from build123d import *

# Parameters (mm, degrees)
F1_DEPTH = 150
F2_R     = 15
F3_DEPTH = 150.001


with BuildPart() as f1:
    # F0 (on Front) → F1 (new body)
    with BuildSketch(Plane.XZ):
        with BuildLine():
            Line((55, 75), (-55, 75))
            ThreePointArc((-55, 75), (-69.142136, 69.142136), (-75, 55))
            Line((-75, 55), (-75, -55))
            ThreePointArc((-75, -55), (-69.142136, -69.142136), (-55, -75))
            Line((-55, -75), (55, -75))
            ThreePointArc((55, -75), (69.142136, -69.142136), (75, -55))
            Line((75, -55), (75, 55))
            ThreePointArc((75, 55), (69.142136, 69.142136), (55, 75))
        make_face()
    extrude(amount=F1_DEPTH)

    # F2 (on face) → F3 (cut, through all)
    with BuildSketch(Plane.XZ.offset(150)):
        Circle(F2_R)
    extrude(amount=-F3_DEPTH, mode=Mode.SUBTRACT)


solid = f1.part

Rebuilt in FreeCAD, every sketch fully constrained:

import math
import FreeCAD as App
import Part
import Sketcher
from FreeCAD import Vector

doc = App.newDocument("Part")
body = doc.addObject("PartDesign::Body", "Body")

# Sketch on XZ plane
sketch1 = body.newObject("Sketcher::SketchObject", "Sketch")
sketch1.AttachmentSupport = (doc.getObject("XZ_Plane"), [""])
sketch1.MapMode = "FlatFace"
sketch1.addGeometry([
    Part.LineSegment(Vector(55, 75, 0), Vector(-55, 75, 0)),  # 0
    Part.ArcOfCircle(Part.Circle(Vector(-55.000001, 55.000001, 0), Vector(0, 0, 1), 19.999999), math.radians(89.999996), math.radians(180.000004)),  # 1
    Part.LineSegment(Vector(-75, 55, 0), Vector(-75, -55, 0)),  # 2
    Part.ArcOfCircle(Part.Circle(Vector(-55.000001, -55.000001, 0), Vector(0, 0, 1), 19.999999), math.radians(179.999996), math.radians(270.000004)),  # 3
    Part.LineSegment(Vector(-55, -75, 0), Vector(55, -75, 0)),  # 4
    Part.ArcOfCircle(Part.Circle(Vector(55.000001, -55.000001, 0), Vector(0, 0, 1), 19.999999), math.radians(-90.000004), math.radians(0.000004)),  # 5
    Part.LineSegment(Vector(75, -55, 0), Vector(75, 55, 0)),  # 6
    Part.ArcOfCircle(Part.Circle(Vector(55.000001, 55.000001, 0), Vector(0, 0, 1), 19.999999), math.radians(-0.000004), math.radians(90.000004)),  # 7
], False)
sketch1.addConstraint([
    Sketcher.Constraint("Tangent", 0, 2, 1, 1),
    Sketcher.Constraint("Tangent", 1, 2, 2, 1),
    Sketcher.Constraint("Tangent", 2, 2, 3, 1),
    Sketcher.Constraint("Tangent", 3, 2, 4, 1),
    Sketcher.Constraint("Tangent", 4, 2, 5, 1),
    Sketcher.Constraint("Tangent", 5, 2, 6, 1),
    Sketcher.Constraint("Tangent", 6, 2, 7, 1),
    Sketcher.Constraint("Tangent", 7, 2, 0, 1),
    Sketcher.Constraint("Horizontal", 0),
    Sketcher.Constraint("Vertical", 2),
    Sketcher.Constraint("Horizontal", 4),
    Sketcher.Constraint("Vertical", 6),
    Sketcher.Constraint("Equal", 1, 3),
    Sketcher.Constraint("Equal", 3, 5),
    Sketcher.Constraint("Equal", 5, 7),
    Sketcher.Constraint("Symmetric", 1, 3, 5, 3, -1, 1),
    Sketcher.Constraint("Equal", 4, 2),
    Sketcher.Constraint("Radius", 1, 19.999999),
    Sketcher.Constraint("DistanceX", 0, 2, 0, 1, 110.0),
])
pad1 = body.newObject("PartDesign::Pad", "Pad")
pad1.Profile = sketch1
pad1.Length = 150

# Sketch on XZ plane
sketch2 = body.newObject("Sketcher::SketchObject", "Sketch001")
sketch2.AttachmentSupport = (doc.getObject("XZ_Plane"), [""])
sketch2.MapMode = "FlatFace"
sketch2.AttachmentOffset = App.Placement(Vector(0, 0, 150), App.Rotation())
sketch2.addGeometry(Part.Circle(Vector(0, 0, 0), Vector(0, 0, 1), 15), False)
sketch2.addConstraint([
    Sketcher.Constraint("Coincident", 0, 3, -1, 1),
    Sketcher.Constraint("Diameter", 0, 30.0),
])
pocket1 = body.newObject("PartDesign::Pocket", "Pocket")
pocket1.Profile = sketch2
pocket1.Type = "ThroughAll"

doc.recompute()
